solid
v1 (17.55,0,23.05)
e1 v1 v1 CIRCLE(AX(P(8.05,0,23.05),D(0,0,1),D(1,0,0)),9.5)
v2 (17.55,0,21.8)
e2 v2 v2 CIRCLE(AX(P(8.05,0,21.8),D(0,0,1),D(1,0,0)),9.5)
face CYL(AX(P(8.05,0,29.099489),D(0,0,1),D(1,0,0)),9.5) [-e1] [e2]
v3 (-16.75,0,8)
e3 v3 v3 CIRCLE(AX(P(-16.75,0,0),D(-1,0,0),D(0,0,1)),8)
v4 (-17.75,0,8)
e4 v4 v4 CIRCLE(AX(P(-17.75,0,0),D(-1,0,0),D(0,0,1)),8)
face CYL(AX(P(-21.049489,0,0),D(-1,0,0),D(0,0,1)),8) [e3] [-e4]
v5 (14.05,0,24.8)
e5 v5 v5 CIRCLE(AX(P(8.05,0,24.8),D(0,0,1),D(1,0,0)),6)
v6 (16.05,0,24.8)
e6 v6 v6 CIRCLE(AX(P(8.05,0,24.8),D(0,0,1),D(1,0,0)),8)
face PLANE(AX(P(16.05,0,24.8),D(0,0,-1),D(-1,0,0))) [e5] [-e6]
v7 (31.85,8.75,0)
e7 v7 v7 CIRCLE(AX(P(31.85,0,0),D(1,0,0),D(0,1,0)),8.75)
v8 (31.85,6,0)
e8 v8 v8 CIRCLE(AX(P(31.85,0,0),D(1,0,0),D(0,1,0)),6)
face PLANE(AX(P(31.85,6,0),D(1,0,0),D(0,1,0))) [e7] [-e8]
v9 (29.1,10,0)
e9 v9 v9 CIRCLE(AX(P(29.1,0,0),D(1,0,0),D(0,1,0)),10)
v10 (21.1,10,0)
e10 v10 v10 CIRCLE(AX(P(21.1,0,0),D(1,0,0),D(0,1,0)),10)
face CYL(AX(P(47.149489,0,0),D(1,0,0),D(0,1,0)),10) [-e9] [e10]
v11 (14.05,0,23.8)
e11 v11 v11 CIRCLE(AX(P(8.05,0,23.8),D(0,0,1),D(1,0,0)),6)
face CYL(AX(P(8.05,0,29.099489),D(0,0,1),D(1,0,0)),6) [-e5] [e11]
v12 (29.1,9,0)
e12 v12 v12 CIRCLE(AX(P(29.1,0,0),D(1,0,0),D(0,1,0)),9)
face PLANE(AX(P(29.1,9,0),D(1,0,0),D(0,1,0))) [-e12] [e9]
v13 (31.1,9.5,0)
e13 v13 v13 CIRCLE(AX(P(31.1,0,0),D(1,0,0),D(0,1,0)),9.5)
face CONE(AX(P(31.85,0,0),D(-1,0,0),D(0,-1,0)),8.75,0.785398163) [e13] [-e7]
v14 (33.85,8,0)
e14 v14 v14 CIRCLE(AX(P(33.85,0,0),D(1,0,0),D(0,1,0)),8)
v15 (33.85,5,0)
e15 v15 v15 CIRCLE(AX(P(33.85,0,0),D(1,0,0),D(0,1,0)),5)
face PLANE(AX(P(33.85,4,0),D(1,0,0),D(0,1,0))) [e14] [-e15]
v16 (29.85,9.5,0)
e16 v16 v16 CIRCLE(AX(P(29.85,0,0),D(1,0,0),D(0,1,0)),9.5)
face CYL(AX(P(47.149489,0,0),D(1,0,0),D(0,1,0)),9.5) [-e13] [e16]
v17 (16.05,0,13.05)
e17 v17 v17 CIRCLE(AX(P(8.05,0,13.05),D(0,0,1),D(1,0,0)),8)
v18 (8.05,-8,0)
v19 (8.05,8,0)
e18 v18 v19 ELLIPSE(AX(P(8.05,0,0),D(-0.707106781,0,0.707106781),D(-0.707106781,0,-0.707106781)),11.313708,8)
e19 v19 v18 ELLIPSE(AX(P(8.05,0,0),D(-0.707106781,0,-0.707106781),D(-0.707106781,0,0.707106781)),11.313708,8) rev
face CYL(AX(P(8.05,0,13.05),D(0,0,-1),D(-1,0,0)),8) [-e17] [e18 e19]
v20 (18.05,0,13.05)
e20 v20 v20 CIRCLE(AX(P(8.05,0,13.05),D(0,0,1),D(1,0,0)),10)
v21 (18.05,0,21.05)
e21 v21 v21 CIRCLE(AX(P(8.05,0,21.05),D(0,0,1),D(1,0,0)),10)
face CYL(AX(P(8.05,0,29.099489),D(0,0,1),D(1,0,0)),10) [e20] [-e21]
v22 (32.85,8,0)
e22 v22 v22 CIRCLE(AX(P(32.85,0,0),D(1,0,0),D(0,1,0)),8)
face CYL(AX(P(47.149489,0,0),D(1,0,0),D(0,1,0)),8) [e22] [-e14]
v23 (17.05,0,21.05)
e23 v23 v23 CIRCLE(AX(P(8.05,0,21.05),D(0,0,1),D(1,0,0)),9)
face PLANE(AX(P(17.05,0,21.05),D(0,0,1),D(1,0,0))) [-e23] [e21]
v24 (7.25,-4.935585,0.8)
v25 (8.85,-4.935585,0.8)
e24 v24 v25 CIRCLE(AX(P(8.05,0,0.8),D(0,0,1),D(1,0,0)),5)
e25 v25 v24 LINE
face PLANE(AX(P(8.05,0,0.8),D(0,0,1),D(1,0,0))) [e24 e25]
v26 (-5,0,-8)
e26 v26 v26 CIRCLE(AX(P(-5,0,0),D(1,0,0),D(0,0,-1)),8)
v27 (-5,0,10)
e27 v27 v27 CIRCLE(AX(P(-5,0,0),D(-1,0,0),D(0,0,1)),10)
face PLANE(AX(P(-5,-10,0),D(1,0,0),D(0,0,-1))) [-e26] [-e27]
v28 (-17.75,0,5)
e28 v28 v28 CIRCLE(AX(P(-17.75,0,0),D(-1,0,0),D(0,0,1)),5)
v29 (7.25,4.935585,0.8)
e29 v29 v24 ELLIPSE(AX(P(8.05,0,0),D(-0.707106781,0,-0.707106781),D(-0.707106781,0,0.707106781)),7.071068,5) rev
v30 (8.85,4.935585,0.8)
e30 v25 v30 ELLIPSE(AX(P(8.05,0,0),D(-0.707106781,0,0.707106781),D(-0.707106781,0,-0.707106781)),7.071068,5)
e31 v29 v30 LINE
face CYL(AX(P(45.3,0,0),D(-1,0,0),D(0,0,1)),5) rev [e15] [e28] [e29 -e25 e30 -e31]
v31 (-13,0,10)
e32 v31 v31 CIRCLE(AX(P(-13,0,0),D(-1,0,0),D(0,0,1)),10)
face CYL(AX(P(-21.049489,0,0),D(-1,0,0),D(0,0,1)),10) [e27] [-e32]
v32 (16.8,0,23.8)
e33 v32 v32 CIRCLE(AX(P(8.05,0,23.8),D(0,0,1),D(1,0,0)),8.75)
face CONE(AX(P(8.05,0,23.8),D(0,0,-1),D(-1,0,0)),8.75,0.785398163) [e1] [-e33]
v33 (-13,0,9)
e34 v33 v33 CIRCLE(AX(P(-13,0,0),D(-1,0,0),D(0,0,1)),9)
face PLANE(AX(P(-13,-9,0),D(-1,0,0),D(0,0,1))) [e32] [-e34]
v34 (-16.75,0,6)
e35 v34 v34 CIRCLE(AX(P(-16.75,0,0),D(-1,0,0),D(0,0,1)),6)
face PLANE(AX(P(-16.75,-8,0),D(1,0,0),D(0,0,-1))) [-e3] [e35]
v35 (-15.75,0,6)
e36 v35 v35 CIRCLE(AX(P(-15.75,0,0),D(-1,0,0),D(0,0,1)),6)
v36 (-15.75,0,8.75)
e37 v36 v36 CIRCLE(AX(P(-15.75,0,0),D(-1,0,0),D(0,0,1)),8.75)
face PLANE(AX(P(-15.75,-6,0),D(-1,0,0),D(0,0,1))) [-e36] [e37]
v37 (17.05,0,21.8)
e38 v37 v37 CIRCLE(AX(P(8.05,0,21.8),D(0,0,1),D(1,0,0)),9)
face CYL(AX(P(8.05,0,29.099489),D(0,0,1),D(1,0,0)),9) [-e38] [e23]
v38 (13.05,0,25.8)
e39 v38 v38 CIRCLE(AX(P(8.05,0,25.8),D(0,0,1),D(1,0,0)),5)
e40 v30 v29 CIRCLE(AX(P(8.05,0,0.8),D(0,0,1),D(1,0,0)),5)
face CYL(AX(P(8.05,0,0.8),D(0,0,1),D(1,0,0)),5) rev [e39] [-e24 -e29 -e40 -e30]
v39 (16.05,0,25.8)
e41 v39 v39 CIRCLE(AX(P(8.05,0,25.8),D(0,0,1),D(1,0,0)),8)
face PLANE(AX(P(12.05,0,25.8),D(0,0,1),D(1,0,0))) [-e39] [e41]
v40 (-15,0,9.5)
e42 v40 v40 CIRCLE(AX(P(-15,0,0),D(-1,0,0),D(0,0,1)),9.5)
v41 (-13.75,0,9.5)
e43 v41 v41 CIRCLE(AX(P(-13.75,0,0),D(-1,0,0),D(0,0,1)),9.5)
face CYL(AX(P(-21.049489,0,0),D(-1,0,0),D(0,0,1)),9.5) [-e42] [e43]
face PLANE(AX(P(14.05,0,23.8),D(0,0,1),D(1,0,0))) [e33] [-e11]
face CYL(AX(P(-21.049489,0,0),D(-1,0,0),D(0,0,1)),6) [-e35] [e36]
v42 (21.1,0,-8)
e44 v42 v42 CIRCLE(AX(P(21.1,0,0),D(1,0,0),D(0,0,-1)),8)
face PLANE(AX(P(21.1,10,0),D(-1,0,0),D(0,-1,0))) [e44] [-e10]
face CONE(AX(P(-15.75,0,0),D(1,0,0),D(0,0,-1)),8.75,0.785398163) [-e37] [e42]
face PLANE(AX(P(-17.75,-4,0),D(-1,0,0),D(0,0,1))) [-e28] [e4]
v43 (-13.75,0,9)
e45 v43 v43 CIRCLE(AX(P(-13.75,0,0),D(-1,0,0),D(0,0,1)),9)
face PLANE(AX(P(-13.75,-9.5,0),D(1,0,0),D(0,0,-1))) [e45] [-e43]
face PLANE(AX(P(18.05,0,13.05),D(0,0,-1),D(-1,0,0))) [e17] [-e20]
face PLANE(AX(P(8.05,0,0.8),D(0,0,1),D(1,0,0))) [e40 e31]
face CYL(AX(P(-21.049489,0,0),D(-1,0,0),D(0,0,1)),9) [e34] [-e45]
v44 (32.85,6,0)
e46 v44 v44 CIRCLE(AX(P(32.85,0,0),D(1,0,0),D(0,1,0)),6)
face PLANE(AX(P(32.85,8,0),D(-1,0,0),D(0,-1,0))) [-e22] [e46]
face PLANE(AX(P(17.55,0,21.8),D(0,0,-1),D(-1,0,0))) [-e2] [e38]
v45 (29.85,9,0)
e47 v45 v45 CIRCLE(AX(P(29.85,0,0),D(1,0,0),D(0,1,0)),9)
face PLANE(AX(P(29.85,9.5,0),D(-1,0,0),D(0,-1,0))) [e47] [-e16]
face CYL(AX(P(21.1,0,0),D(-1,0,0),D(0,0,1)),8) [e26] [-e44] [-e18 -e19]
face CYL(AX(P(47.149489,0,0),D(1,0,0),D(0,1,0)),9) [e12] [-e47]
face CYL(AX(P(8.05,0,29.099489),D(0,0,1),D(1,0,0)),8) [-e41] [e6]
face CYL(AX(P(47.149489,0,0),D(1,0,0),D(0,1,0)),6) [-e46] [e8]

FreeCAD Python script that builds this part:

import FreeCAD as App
import Part
import Sketcher
from FreeCAD import Vector
Q = App.Units.Quantity


def add_polygon(sketch, points):
    """Adds a closed chain of lines whose ends are joined by coincident constraints."""
    first, n = sketch.GeometryCount, len(points)
    for a, b in zip(points, points[1:] + points[:1]):
        sketch.addGeometry(Part.LineSegment(App.Vector(*a, 0), App.Vector(*b, 0)), False)
    for i in range(n):
        sketch.addConstraint(Sketcher.Constraint("Coincident", first + i, 2, first + (i + 1) % n, 1))

doc = App.newDocument("Part")
body = doc.addObject("PartDesign::Body", "Body")

# Sketch on XY plane
sketch1 = doc.addObject("Sketcher::SketchObject", "Sketch")
body.addObject(sketch1)
sketch1.AttachmentSupport = (doc.XY_Plane, [""])
sketch1.MapMode = "FlatFace"
add_polygon(sketch1, [(-16.75, -8), (-16.75, -6), (-15.75, -6), (-15.75, -8.75), (-15, -9.5), (-13.75, -9.5), (-13.75, -9), (-13, -9), (-13, -10), (-5, -10), (-5, -4), (-17.75, -4), (-17.75, -8)])  # lines 0-12
sketch1.addConstraint(Sketcher.Constraint("Vertical", 0))
sketch1.addConstraint(Sketcher.Constraint("Horizontal", 1))
sketch1.addConstraint(Sketcher.Constraint("Vertical", 2))
sketch1.addConstraint(Sketcher.Constraint("Horizontal", 4))
sketch1.addConstraint(Sketcher.Constraint("Vertical", 5))
sketch1.addConstraint(Sketcher.Constraint("Horizontal", 6))
sketch1.addConstraint(Sketcher.Constraint("Vertical", 7))
sketch1.addConstraint(Sketcher.Constraint("Horizontal", 8))
sketch1.addConstraint(Sketcher.Constraint("Vertical", 9))
sketch1.addConstraint(Sketcher.Constraint("Horizontal", 10))
sketch1.addConstraint(Sketcher.Constraint("Vertical", 11))
sketch1.addConstraint(Sketcher.Constraint("Horizontal", 12))
sketch1.addConstraint(Sketcher.Constraint("Equal", 1, 12))
sketch1.addConstraint(Sketcher.Constraint("Equal", 12, 7))
sketch1.addConstraint(Sketcher.Constraint("DistanceX", 1, 1, 1, 2, 1.0))
sketch1.addConstraint(Sketcher.Constraint("DistanceX", 8, 1, 8, 2, 8.0))
sketch1.addConstraint(Sketcher.Constraint("DistanceY", 0, 1, 0, 2, 2.0))
sketch1.addConstraint(Sketcher.Constraint("DistanceY", 9, 1, 9, 2, 6.0))
sketch1.addConstraint(Sketcher.Constraint("DistanceY", 11, 2, 11, 1, 4.0))
sketch1.addConstraint(Sketcher.Constraint("Angle", 3, Q("-45 deg")))
sketch1.addConstraint(Sketcher.Constraint("DistanceY", 5, 1, 5, 2, 0.5))
sketch1.addConstraint(Sketcher.Constraint("DistanceY", 0, 2, -1, 1, 6.0))
sketch1.addConstraint(Sketcher.Constraint("DistanceX", 3, 2, -1, 1, 15.0))
sketch1.addConstraint(Sketcher.Constraint("DistanceX", 6, 2, -1, 1, 13.0))
sketch1.addConstraint(Sketcher.Constraint("DistanceX", 2, 2, 4, 2, 2.0))
sketch1.addConstraint(Sketcher.Constraint("DistanceX", 4, 1, 4, 2, 1.25))
revolution = doc.addObject("PartDesign::Revolution", "Revolution")
body.addObject(revolution)
revolution.Profile = sketch1
revolution.ReferenceAxis = (sketch1, ["H_Axis"])
revolution.Angle = 360

# Sketch on YZ plane
sketch2 = doc.addObject("Sketcher::SketchObject", "Sketch001")
body.addObject(sketch2)
sketch2.AttachmentSupport = (doc.YZ_Plane, [""])
sketch2.MapMode = "FlatFace"
sketch2.AttachmentOffset = App.Placement(Vector(0, 0, -5), App.Rotation())
sketch2.addGeometry(Part.Circle(Vector(0, 0, 0), Vector(0, 0, 1), 8), False)
sketch2.addGeometry(Part.Circle(Vector(0, 0, 0), Vector(0, 0, 1), 4), False)
sketch2.addConstraint(Sketcher.Constraint("Coincident", 0, 3, -1, 1))
sketch2.addConstraint(Sketcher.Constraint("Coincident", 1, 3, -1, 1))
sketch2.addConstraint(Sketcher.Constraint("Diameter", 0, 16.0))
sketch2.addConstraint(Sketcher.Constraint("Diameter", 1, 8.0))
pad1 = doc.addObject("PartDesign::Pad", "Pad")
body.addObject(pad1)
pad1.Profile = sketch2
pad1.Length = 26.1

# Sketch on XY plane
sketch3 = doc.addObject("Sketcher::SketchObject", "Sketch002")
body.addObject(sketch3)
sketch3.AttachmentSupport = (doc.XY_Plane, [""])
sketch3.MapMode = "FlatFace"
add_polygon(sketch3, [(32.85, 8), (32.85, 6), (31.85, 6), (31.85, 8.75), (31.1, 9.5), (29.85, 9.5), (29.85, 9), (29.1, 9), (29.1, 10), (21.1, 10), (21.1, 4), (33.85, 4), (33.85, 8)])  # lines 0-12
sketch3.addConstraint(Sketcher.Constraint("Vertical", 0))
sketch3.addConstraint(Sketcher.Constraint("Horizontal", 1))
sketch3.addConstraint(Sketcher.Constraint("Vertical", 2))
sketch3.addConstraint(Sketcher.Constraint("Horizontal", 4))
sketch3.addConstraint(Sketcher.Constraint("Vertical", 5))
sketch3.addConstraint(Sketcher.Constraint("Horizontal", 6))
sketch3.addConstraint(Sketcher.Constraint("Vertical", 7))
sketch3.addConstraint(Sketcher.Constraint("Horizontal", 8))
sketch3.addConstraint(Sketcher.Constraint("Vertical", 9))
sketch3.addConstraint(Sketcher.Constraint("Horizontal", 10))
sketch3.addConstraint(Sketcher.Constraint("Vertical", 11))
sketch3.addConstraint(Sketcher.Constraint("Horizontal", 12))
sketch3.addConstraint(Sketcher.Constraint("Equal", 1, 12))
sketch3.addConstraint(Sketcher.Constraint("Equal", 12, 7))
sketch3.addConstraint(Sketcher.Constraint("DistanceX", 1, 2, 1, 1, 1.0))
sketch3.addConstraint(Sketcher.Constraint("DistanceX", 8, 2, 8, 1, 8.0))
sketch3.addConstraint(Sketcher.Constraint("DistanceY", 0, 2, 0, 1, 2.0))
sketch3.addConstraint(Sketcher.Constraint("DistanceY", 9, 2, 9, 1, 6.0))
sketch3.addConstraint(Sketcher.Constraint("DistanceY", 11, 1, 11, 2, 4.0))
sketch3.addConstraint(Sketcher.Constraint("Angle", 3, Q("135 deg")))
sketch3.addConstraint(Sketcher.Constraint("DistanceY", 5, 2, 5, 1, 0.5))
sketch3.addConstraint(Sketcher.Constraint("DistanceY", -1, 1, 0, 2, 6.0))
sketch3.addConstraint(Sketcher.Constraint("DistanceX", 4, 2, 2, 2, 2.0))
sketch3.addConstraint(Sketcher.Constraint("DistanceX", 6, 2, 3, 2, 2.0))
sketch3.addConstraint(Sketcher.Constraint("DistanceX", 4, 2, 4, 1, 1.25))
sketch3.addConstraint(Sketcher.Constraint("DistanceX", -1, 1, 3, 2, 31.1))
revolution2 = doc.addObject("PartDesign::Revolution", "Revolution001")
body.addObject(revolution2)
revolution2.Profile = sketch3
revolution2.ReferenceAxis = (sketch3, ["H_Axis"])
revolution2.Angle = 360

# Sketch on XY plane
sketch4 = doc.addObject("Sketcher::SketchObject", "Sketch003")
body.addObject(sketch4)
sketch4.AttachmentSupport = (doc.XY_Plane, [""])
sketch4.MapMode = "FlatFace"
sketch4.addGeometry(Part.Circle(Vector(8.05, 0, 0), Vector(0, 0, 1), 8), False)
sketch4.addConstraint(Sketcher.Constraint("PointOnObject", 0, 3, -1))
sketch4.addConstraint(Sketcher.Constraint("Diameter", 0, 16.0))
sketch4.addConstraint(Sketcher.Constraint("DistanceX", -1, 1, 0, 3, 8.05))
pad2 = doc.addObject("PartDesign::Pad", "Pad001")
body.addObject(pad2)
pad2.Profile = sketch4
pad2.Length = 13.05

# Sketch on XZ plane
sketch5 = doc.addObject("Sketcher::SketchObject", "Sketch004")
body.addObject(sketch5)
sketch5.AttachmentSupport = (doc.XZ_Plane, [""])
sketch5.MapMode = "FlatFace"
add_polygon(sketch5, [(16.05, 24.8), (14.05, 24.8), (14.05, 23.8), (16.8, 23.8), (17.55, 23.05), (17.55, 21.8), (17.05, 21.8), (17.05, 21.05), (18.05, 21.05), (18.05, 13.05), (12.05, 13.05), (12.05, 25.8), (16.05, 25.8)])  # lines 0-12
sketch5.addGeometry(Part.LineSegment(Vector(8.05, 25.8, 0), Vector(8.05, 13.05, 0)), True)  # axis
sketch5.addConstraint(Sketcher.Constraint("Horizontal", 0))
sketch5.addConstraint(Sketcher.Constraint("Vertical", 1))
sketch5.addConstraint(Sketcher.Constraint("Horizontal", 2))
sketch5.addConstraint(Sketcher.Constraint("Vertical", 4))
sketch5.addConstraint(Sketcher.Constraint("Horizontal", 5))
sketch5.addConstraint(Sketcher.Constraint("Vertical", 6))
sketch5.addConstraint(Sketcher.Constraint("Horizontal", 7))
sketch5.addConstraint(Sketcher.Constraint("Vertical", 8))
sketch5.addConstraint(Sketcher.Constraint("Horizontal", 9))
sketch5.addConstraint(Sketcher.Constraint("Vertical", 10))
sketch5.addConstraint(Sketcher.Constraint("Horizontal", 11))
sketch5.addConstraint(Sketcher.Constraint("Vertical", 12))
sketch5.addConstraint(Sketcher.Constraint("Vertical", 13))
sketch5.addConstraint(Sketcher.Constraint("Horizontal", 11, 2, 13, 1))
sketch5.addConstraint(Sketcher.Constraint("Horizontal", 9, 2, 13, 2))
sketch5.addConstraint(Sketcher.Constraint("Equal", 7, 1))
sketch5.addConstraint(Sketcher.Constraint("Equal", 1, 12))
sketch5.addConstraint(Sketcher.Constraint("DistanceX", 0, 2, 0, 1, 2.0))
sketch5.addConstraint(Sketcher.Constraint("DistanceX", 7, 1, 7, 2, 1.0))
sketch5.addConstraint(Sketcher.Constraint("DistanceX", 9, 2, 9, 1, 6.0))
sketch5.addConstraint(Sketcher.Constraint("DistanceX", 11, 1, 11, 2, 4.0))
sketch5.addConstraint(Sketcher.Constraint("DistanceY", 8, 2, 8, 1, 8.0))
sketch5.addConstraint(Sketcher.Constraint("Angle", 3, Q("-45 deg")))
sketch5.addConstraint(Sketcher.Constraint("DistanceX", 5, 2, 5, 1, 0.5))
sketch5.addConstraint(Sketcher.Constraint("DistanceY", 4, 2, 2, 2, 2.0))
sketch5.addConstraint(Sketcher.Constraint("DistanceY", 6, 2, 3, 2, 2.0))
sketch5.addConstraint(Sketcher.Constraint("DistanceX", 13, 1, 10, 2, 4.0))
sketch5.addConstraint(Sketcher.Constraint("DistanceX", 2, 1, 2, 2, 2.75))
sketch5.addConstraint(Sketcher.Constraint("DistanceY", -1, 1, 0, 2, 24.8))
sketch5.addConstraint(Sketcher.Constraint("DistanceX", -1, 1, 2, 2, 16.8))
revolution3 = doc.addObject("PartDesign::Revolution", "Revolution002")
body.addObject(revolution3)
revolution3.Profile = sketch5
revolution3.ReferenceAxis = (sketch5, ["Axis0"])
revolution3.Angle = 360

# Sketch on YZ plane
sketch6 = doc.addObject("Sketcher::SketchObject", "Sketch005")
body.addObject(sketch6)
sketch6.AttachmentSupport = (doc.YZ_Plane, [""])
sketch6.MapMode = "FlatFace"
sketch6.AttachmentOffset = App.Placement(Vector(0, 0, -17.75), App.Rotation())
sketch6.addGeometry(Part.Circle(Vector(0, 0, 0), Vector(0, 0, 1), 5), False)
sketch6.addConstraint(Sketcher.Constraint("Coincident", 0, 3, -1, 1))
sketch6.addConstraint(Sketcher.Constraint("Diameter", 0, 10.0))
pocket1 = doc.addObject("PartDesign::Pocket", "Pocket")
body.addObject(pocket1)
pocket1.Profile = sketch6
pocket1.Length = 63.05
pocket1.Reversed = True

# Sketch on XY plane
sketch7 = doc.addObject("Sketcher::SketchObject", "Sketch006")
body.addObject(sketch7)
sketch7.AttachmentSupport = (doc.XY_Plane, [""])
sketch7.MapMode = "FlatFace"
sketch7.AttachmentOffset = App.Placement(Vector(0, 0, 25.8), App.Rotation())
sketch7.addGeometry(Part.Circle(Vector(8.05, 0, 0), Vector(0, 0, 1), 5), False)
sketch7.addConstraint(Sketcher.Constraint("PointOnObject", 0, 3, -1))
sketch7.addConstraint(Sketcher.Constraint("Diameter", 0, 10.0))
sketch7.addConstraint(Sketcher.Constraint("DistanceX", -1, 1, 0, 3, 8.05))
pocket2 = doc.addObject("PartDesign::Pocket", "Pocket001")
body.addObject(pocket2)
pocket2.Profile = sketch7
pocket2.Length = 25

doc.recompute()
